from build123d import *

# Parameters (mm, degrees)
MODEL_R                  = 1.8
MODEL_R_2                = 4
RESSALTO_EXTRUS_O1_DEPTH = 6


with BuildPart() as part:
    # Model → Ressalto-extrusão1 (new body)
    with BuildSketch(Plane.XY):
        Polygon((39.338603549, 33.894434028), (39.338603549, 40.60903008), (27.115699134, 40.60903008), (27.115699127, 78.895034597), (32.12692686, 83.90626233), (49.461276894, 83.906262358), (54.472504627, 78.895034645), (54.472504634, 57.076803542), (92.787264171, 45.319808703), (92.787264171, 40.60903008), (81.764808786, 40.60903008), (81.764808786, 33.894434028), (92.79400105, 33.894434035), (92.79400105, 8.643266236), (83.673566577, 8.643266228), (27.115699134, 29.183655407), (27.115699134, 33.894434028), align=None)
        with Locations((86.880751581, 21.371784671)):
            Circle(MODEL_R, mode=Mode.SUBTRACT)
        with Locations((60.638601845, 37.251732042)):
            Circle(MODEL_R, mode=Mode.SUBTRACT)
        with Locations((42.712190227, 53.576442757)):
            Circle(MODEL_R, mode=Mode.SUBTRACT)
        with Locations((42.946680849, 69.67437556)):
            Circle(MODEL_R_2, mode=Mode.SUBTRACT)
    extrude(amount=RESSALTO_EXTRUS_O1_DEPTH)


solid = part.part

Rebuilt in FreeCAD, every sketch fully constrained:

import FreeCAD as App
import Part
import Sketcher


def add_polygon(sketch, points):
    """Adds a closed chain of lines whose ends are joined by coincident constraints."""
    first, n = sketch.GeometryCount, len(points)
    for a, b in zip(points, points[1:] + points[:1]):
        sketch.addGeometry(Part.LineSegment(App.Vector(*a, 0), App.Vector(*b, 0)), False)
    for i in range(n):
        sketch.addConstraint(Sketcher.Constraint("Coincident", first + i, 2, first + (i + 1) % n, 1))

doc = App.newDocument("Part")
body = doc.addObject("PartDesign::Body", "Body")

# Sketch on XY plane
sketch1 = doc.addObject("Sketcher::SketchObject", "Sketch")
body.addObject(sketch1)
sketch1.AttachmentSupport = (doc.XY_Plane, [""])
sketch1.MapMode = "FlatFace"
add_polygon(sketch1, [(39.3, 40.6), (39.3, 33.9), (27.1, 33.9), (27.1, 29.2), (83.7, 8.6), (92.8, 8.6), (92.8, 33.9), (81.8, 33.9), (81.8, 40.6), (92.8, 40.6), (92.8, 45.3), (54.5, 57.1), (54.5, 78.9), (49.5, 83.9), (32.1, 83.9), (27.1, 78.9), (27.1, 40.6)])  # lines 0-16
sketch1.addGeometry(Part.Circle(App.Vector(86.9, 21.4, 0), App.Vector(0, 0, 1), 1.8), False)  # 17
sketch1.addGeometry(Part.Circle(App.Vector(60.6, 37.3, 0), App.Vector(0, 0, 1), 1.8), False)  # 18
sketch1.addGeometry(Part.Circle(App.Vector(42.7, 53.6, 0), App.Vector(0, 0, 1), 1.8), False)  # 19
sketch1.addGeometry(Part.Circle(App.Vector(42.9, 69.7, 0), App.Vector(0, 0, 1), 4), False)  # 20
sketch1.addConstraint([
    Sketcher.Constraint("Vertical", 0),
    Sketcher.Constraint("Horizontal", 1),
    Sketcher.Constraint("Vertical", 2),
    Sketcher.Constraint("Horizontal", 4),
    Sketcher.Constraint("Vertical", 5),
    Sketcher.Constraint("Horizontal", 6),
    Sketcher.Constraint("Vertical", 7),
    Sketcher.Constraint("Horizontal", 8),
    Sketcher.Constraint("Vertical", 9),
    Sketcher.Constraint("Vertical", 11),
    Sketcher.Constraint("Horizontal", 13),
    Sketcher.Constraint("Vertical", 15),
    Sketcher.Constraint("Horizontal", 16),
    Sketcher.Constraint("Equal", 17, 18),
    Sketcher.Constraint("Equal", 18, 19),
    Sketcher.Constraint("Perpendicular", 12, 14),
    Sketcher.Constraint("Horizontal", 1, 2, 5, 2),
    Sketcher.Constraint("Horizontal", 11, 2, 14, 2),
    Sketcher.Constraint("Horizontal", 8, 2, 15, 2),
    Sketcher.Constraint("Vertical", 2, 2, 14, 2),
    Sketcher.Constraint("Equal", 2, 9),
    Sketcher.Constraint("Equal", 12, 14),
    Sketcher.Constraint("Diameter", 20, 8.0),
    Sketcher.Constraint("Diameter", 17, 3.6),
    Sketcher.Constraint("DistanceX", 0, 2, 18, 3, 21.299998),
    Sketcher.Constraint("DistanceX", -1, 1, 4, 2, 92.794001),
    Sketcher.Constraint("DistanceX", 13, 2, 13, 1, 17.33435),
    Sketcher.Constraint("DistanceY", 2, 2, 2, 1, 4.710779),
    Sketcher.Constraint("DistanceY", 11, 1, 11, 2, 21.818231),
    Sketcher.Constraint("DistanceX", -1, 1, 18, 3, 60.638602),
    Sketcher.Constraint("DistanceX", -1, 1, 1, 2, 27.115699),
    Sketcher.Constraint("DistanceY", 0, 2, 18, 3, 3.357298),
    Sketcher.Constraint("DistanceY", 18, 3, 7, 2, 3.357298),
    Sketcher.Constraint("DistanceX", 0, 2, 10, 2, 15.133901),
    Sketcher.Constraint("Distance", 10, 40.07802),
    Sketcher.Constraint("DistanceX", 4, 1, 4, 2, 9.120434),
    Sketcher.Constraint("DistanceX", 6, 2, 6, 1, 11.029192),
    Sketcher.Constraint("DistanceX", 8, 1, 8, 2, 11.022455),
    Sketcher.Constraint("DistanceY", 5, 1, 5, 2, 25.251168),
    Sketcher.Constraint("DistanceX", -1, 1, 17, 3, 86.880752),
    Sketcher.Constraint("DistanceX", -1, 1, 19, 3, 42.71219),
    Sketcher.Constraint("DistanceX", -1, 1, 20, 3, 42.946681),
    Sketcher.Constraint("DistanceY", -1, 1, 7, 2, 40.60903),
    Sketcher.Constraint("DistanceY", 18, 3, 19, 3, 16.324711),
    Sketcher.Constraint("DistanceY", 17, 3, 19, 3, 32.204658),
    Sketcher.Constraint("DistanceY", 17, 3, 20, 3, 48.302591),
])
pad1 = doc.addObject("PartDesign::Pad", "Pad")
body.addObject(pad1)
pad1.Profile = sketch1
pad1.Length = 6

doc.recompute()
